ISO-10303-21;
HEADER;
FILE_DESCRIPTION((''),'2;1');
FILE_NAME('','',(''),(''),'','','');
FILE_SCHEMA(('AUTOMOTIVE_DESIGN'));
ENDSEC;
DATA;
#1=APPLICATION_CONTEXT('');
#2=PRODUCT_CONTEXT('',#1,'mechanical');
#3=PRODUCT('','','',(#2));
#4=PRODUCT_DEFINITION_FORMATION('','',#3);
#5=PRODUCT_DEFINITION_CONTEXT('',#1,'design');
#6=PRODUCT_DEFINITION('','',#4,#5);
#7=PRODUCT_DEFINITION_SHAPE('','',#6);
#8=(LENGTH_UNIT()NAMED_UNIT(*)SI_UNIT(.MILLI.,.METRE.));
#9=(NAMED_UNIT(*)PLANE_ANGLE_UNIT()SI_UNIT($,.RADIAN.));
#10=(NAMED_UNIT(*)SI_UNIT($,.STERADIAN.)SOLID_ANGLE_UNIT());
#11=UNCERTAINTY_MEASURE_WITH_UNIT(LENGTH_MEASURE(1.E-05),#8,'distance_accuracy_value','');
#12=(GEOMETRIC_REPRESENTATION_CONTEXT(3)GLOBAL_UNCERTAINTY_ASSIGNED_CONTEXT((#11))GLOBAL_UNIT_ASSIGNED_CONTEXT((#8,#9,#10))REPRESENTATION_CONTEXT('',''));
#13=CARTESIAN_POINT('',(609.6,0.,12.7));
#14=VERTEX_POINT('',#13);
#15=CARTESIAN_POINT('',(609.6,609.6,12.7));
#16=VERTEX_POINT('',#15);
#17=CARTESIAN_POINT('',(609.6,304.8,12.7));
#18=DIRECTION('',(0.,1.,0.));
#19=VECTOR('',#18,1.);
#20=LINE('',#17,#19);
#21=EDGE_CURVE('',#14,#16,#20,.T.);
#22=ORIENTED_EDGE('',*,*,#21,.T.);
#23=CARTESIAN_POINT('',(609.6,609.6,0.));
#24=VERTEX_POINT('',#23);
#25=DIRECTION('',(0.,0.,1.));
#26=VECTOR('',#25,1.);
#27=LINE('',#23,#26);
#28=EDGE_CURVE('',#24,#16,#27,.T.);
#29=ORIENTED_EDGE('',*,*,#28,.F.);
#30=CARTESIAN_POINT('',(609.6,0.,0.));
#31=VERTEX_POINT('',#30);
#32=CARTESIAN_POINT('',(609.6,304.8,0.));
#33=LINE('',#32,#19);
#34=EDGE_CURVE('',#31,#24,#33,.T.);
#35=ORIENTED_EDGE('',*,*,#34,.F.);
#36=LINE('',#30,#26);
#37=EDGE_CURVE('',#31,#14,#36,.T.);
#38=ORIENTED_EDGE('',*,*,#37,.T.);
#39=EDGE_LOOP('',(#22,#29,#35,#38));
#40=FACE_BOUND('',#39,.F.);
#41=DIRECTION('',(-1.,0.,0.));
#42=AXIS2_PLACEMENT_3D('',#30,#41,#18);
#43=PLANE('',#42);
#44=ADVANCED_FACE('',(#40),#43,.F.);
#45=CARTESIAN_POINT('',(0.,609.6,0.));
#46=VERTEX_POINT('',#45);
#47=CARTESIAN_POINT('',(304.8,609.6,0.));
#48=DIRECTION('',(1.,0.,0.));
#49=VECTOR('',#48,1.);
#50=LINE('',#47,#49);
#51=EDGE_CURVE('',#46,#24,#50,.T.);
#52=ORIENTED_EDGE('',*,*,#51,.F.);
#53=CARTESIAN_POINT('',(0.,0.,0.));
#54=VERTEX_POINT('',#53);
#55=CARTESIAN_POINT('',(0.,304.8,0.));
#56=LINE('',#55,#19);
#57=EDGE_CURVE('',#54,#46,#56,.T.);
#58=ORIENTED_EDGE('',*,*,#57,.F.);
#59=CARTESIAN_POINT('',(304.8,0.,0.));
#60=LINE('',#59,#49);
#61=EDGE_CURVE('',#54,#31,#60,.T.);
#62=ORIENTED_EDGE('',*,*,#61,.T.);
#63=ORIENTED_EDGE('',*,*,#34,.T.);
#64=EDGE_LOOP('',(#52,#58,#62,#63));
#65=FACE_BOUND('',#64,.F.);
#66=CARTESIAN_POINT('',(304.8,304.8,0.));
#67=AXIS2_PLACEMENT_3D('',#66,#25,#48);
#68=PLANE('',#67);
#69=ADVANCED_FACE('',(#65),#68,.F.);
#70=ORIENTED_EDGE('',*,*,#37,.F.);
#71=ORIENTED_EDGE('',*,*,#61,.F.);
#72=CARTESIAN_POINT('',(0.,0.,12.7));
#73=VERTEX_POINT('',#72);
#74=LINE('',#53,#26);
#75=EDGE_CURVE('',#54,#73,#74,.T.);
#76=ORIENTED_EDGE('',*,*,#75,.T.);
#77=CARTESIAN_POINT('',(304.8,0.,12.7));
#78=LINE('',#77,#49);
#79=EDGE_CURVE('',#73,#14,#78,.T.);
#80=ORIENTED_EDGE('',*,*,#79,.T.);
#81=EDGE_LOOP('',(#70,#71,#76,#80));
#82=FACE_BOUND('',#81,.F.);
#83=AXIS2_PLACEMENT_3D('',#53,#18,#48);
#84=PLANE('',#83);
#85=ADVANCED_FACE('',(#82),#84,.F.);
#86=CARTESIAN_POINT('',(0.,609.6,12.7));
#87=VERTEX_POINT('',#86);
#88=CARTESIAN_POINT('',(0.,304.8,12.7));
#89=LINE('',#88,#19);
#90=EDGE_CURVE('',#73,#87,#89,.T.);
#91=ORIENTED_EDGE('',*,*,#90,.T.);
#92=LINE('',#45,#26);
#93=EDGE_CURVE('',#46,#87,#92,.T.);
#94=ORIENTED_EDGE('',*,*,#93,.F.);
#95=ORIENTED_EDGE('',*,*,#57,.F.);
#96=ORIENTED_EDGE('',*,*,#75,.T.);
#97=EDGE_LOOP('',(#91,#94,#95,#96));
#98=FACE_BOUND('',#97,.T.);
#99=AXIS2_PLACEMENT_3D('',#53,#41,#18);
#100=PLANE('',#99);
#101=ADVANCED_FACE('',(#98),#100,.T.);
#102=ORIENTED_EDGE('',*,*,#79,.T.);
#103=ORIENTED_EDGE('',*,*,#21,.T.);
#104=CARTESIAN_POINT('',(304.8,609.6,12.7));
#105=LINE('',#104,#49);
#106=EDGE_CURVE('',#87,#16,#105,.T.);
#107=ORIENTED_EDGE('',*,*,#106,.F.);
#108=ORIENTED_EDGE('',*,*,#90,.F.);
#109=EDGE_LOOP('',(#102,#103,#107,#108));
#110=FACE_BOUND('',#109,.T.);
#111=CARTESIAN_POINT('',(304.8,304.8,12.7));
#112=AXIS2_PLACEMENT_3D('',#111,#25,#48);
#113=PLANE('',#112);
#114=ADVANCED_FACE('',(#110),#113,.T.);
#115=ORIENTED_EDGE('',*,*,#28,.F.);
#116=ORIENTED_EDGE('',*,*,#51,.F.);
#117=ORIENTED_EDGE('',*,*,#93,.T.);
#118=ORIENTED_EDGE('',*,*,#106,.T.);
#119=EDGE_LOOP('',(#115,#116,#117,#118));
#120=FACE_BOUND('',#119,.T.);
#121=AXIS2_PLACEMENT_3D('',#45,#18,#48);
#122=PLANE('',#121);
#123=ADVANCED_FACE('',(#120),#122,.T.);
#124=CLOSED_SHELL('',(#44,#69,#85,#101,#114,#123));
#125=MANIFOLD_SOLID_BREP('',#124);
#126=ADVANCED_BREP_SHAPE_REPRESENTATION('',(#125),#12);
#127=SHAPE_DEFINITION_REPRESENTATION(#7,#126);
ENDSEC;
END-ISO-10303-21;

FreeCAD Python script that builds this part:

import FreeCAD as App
import Part
import Sketcher
Q = App.Units.Quantity


def add_polygon(sketch, points):
    """Adds a closed chain of lines whose ends are joined by coincident constraints."""
    first, n = sketch.GeometryCount, len(points)
    for a, b in zip(points, points[1:] + points[:1]):
        sketch.addGeometry(Part.LineSegment(App.Vector(*a, 0), App.Vector(*b, 0)), False)
    for i in range(n):
        sketch.addConstraint(Sketcher.Constraint("Coincident", first + i, 2, first + (i + 1) % n, 1))

doc = App.newDocument("Part")
body = doc.addObject("PartDesign::Body", "Body")

sketch1 = body.newObject("Sketcher::SketchObject", "Sketch")
sketch1.AttachmentSupport = (doc.getObject("XY_Plane"), [""])
sketch1.MapMode = "FlatFace"
add_polygon(sketch1, [(0, 610), (0, 0), (610, 0), (610, 610)])
sketch1.addConstraint([
    Sketcher.Constraint("Vertical", 0),
    Sketcher.Constraint("Horizontal", 1),
    Sketcher.Constraint("Vertical", 2),
    Sketcher.Constraint("Horizontal", 3),
    Sketcher.Constraint("Coincident", 0, 2, -1, 1),
    Sketcher.Constraint("Equal", 3, 0),
    Sketcher.Constraint("DistanceX", 1, 1, 1, 2, Q("24 in")),
])
pad1 = body.newObject("PartDesign::Pad", "Pad")
pad1.Profile = sketch1
pad1.Length = Q("0.5 in")

doc.recompute()
